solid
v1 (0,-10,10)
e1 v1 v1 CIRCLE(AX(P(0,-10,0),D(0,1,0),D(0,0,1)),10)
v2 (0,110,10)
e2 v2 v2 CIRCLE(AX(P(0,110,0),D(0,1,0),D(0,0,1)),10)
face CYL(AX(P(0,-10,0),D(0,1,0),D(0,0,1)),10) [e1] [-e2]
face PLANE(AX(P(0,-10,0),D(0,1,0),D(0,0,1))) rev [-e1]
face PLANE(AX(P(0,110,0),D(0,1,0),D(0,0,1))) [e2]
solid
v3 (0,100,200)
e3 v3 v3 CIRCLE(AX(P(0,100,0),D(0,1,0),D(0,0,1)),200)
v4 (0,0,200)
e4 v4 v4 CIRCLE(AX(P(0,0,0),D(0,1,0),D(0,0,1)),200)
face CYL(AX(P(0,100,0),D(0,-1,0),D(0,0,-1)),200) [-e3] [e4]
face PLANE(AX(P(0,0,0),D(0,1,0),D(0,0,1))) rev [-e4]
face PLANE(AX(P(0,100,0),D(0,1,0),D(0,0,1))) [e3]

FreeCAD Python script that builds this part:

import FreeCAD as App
import Part
import Sketcher
from FreeCAD import Vector

doc = App.newDocument("Part")
body = doc.addObject("PartDesign::Body", "Body")

sketch1 = body.newObject("Sketcher::SketchObject", "Sketch")
sketch1.AttachmentSupport = (doc.getObject("XZ_Plane"), [""])
sketch1.MapMode = "FlatFace"
sketch1.addGeometry(Part.Circle(Vector(0, 0, 0), Vector(0, 0, 1), 200), False)
sketch1.addConstraint([
    Sketcher.Constraint("Coincident", 0, 3, -1, 1),
    Sketcher.Constraint("Diameter", 0, 400.0),
])
pad1 = body.newObject("PartDesign::Pad", "Pad")
pad1.Profile = sketch1
pad1.Length = 100
pad1.Reversed = True
body2 = doc.addObject("PartDesign::Body", "Body001")

sketch2 = body2.newObject("Sketcher::SketchObject", "Sketch001")
sketch2.AttachmentSupport = (doc.getObject("XZ_Plane001"), [""])
sketch2.MapMode = "FlatFace"
sketch2.addGeometry(Part.Circle(Vector(0, 0, 0), Vector(0, 0, 1), 10), False)
sketch2.addConstraint([
    Sketcher.Constraint("Coincident", 0, 3, -1, 1),
    Sketcher.Constraint("Diameter", 0, 20.0),
])
pad2 = body2.newObject("PartDesign::Pad", "Pad001")
pad2.Profile = sketch2
pad2.Type = "TwoLengths"
pad2.Length = 110
pad2.Length2 = 10
pad2.Reversed = True

doc.recompute()
